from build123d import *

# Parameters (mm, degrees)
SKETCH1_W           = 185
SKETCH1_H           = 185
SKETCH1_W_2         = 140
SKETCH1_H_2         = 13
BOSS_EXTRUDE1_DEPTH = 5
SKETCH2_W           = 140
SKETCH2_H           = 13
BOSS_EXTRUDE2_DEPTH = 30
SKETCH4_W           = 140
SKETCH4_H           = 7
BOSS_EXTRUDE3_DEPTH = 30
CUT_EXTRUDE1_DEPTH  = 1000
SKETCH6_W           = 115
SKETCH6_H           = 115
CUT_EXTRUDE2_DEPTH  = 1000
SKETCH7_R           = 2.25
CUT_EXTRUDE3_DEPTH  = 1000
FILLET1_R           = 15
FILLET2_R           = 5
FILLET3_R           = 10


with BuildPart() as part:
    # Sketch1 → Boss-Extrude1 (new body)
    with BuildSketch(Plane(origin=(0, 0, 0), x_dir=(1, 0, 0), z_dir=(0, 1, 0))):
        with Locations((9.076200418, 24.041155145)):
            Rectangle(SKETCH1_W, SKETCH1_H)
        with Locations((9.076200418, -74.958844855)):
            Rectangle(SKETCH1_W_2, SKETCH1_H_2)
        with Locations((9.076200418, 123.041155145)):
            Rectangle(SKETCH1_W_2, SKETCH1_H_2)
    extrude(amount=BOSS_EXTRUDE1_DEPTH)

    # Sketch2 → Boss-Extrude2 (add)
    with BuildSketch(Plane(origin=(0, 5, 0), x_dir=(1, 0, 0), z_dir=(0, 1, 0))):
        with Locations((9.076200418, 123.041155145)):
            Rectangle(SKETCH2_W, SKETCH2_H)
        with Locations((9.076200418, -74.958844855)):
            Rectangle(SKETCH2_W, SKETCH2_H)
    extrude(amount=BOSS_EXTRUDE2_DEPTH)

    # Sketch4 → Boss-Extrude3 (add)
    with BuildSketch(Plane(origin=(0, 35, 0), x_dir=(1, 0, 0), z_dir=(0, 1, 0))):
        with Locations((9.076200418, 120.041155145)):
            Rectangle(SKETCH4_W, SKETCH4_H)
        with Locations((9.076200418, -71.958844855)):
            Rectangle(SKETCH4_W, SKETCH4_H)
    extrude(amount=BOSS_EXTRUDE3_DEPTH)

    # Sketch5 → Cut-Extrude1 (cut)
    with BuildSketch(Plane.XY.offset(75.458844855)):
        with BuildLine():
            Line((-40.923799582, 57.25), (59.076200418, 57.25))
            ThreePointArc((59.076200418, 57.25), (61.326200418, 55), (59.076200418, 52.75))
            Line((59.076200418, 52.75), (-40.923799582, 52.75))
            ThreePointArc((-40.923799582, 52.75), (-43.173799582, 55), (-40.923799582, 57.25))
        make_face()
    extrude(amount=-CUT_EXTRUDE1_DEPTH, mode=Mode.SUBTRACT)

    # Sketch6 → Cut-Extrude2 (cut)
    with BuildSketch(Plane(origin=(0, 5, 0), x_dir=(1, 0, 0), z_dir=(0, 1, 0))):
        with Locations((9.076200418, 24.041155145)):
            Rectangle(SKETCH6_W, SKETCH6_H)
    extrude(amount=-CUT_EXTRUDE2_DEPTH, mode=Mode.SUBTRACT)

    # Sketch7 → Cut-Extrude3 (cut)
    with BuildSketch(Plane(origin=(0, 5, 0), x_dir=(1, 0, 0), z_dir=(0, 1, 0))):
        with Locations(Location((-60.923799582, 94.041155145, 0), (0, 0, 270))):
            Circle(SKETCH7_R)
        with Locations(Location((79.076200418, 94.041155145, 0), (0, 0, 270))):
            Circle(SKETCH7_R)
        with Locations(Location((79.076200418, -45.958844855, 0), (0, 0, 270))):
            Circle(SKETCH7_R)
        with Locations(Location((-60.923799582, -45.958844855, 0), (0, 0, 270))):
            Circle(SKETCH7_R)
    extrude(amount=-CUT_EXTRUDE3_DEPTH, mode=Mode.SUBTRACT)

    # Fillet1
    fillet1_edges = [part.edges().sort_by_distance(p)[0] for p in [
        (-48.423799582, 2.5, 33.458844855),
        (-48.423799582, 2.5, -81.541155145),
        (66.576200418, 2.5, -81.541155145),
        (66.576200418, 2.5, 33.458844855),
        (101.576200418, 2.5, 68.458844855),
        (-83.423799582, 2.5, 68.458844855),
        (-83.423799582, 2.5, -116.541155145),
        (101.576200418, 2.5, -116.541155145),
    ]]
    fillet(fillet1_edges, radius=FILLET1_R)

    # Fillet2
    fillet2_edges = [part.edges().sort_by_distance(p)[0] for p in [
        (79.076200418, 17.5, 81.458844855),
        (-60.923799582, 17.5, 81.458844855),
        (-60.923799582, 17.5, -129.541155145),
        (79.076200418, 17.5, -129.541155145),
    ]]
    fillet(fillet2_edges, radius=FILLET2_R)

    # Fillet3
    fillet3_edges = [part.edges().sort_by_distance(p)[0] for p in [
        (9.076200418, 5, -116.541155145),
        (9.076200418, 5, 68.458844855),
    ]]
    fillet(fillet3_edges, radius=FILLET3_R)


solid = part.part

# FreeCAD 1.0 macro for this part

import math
import FreeCAD as App
import Part
import Sketcher
Q = App.Units.Quantity


def edges_at(feature, points):
    """Names of the edges that pass closest to the given points."""
    edges = feature.Shape.Edges
    near = lambda p: min(range(len(edges)), key=lambda i: edges[i].distToShape(Part.Vertex(*p))[0])
    return sorted({f"Edge{near(p) + 1}" for p in points})

doc = App.newDocument("Part")
body = doc.addObject("PartDesign::Body", "Body")

sketch1 = body.newObject("Sketcher::SketchObject", "Sketch")
sketch1.AttachmentSupport = (doc.getObject("XZ_Plane"), [""])
sketch1.MapMode = "FlatFace"
sketch1.addGeometry([
    Part.LineSegment(App.Vector(-83.4238, -116.541155, 0), App.Vector(-83.4238, 68.458845, 0)),
    Part.LineSegment(App.Vector(-83.4238, 68.458845, 0), App.Vector(-60.9238, 68.458845, 0)),
    Part.LineSegment(App.Vector(-60.9238, 68.458845, 0), App.Vector(-60.9238, 81.458845, 0)),
    Part.LineSegment(App.Vector(-60.9238, 81.458845, 0), App.Vector(79.0762, 81.458845, 0)),
    Part.LineSegment(App.Vector(79.0762, 81.458845, 0), App.Vector(79.0762, 68.458845, 0)),
    Part.LineSegment(App.Vector(79.0762, 68.458845, 0), App.Vector(101.5762, 68.458845, 0)),
    Part.LineSegment(App.Vector(101.5762, 68.458845, 0), App.Vector(101.5762, -116.541155, 0)),
    Part.LineSegment(App.Vector(101.5762, -116.541155, 0), App.Vector(79.0762, -116.541155, 0)),
    Part.LineSegment(App.Vector(79.0762, -116.541155, 0), App.Vector(79.0762, -129.541155, 0)),
    Part.LineSegment(App.Vector(79.0762, -129.541155, 0), App.Vector(-60.9238, -129.541155, 0)),
    Part.LineSegment(App.Vector(-60.9238, -129.541155, 0), App.Vector(-60.9238, -116.541155, 0)),
    Part.LineSegment(App.Vector(-60.9238, -116.541155, 0), App.Vector(-83.4238, -116.541155, 0)),
], False)
sketch1.addConstraint([
    Sketcher.Constraint("Coincident", 0, 2, 1, 1),
    Sketcher.Constraint("Coincident", 1, 2, 2, 1),
    Sketcher.Constraint("Coincident", 2, 2, 3, 1),
    Sketcher.Constraint("Coincident", 3, 2, 4, 1),
    Sketcher.Constraint("Coincident", 4, 2, 5, 1),
    Sketcher.Constraint("Coincident", 5, 2, 6, 1),
    Sketcher.Constraint("Coincident", 6, 2, 7, 1),
    Sketcher.Constraint("Coincident", 7, 2, 8, 1),
    Sketcher.Constraint("Coincident", 8, 2, 9, 1),
    Sketcher.Constraint("Coincident", 9, 2, 10, 1),
    Sketcher.Constraint("Coincident", 10, 2, 11, 1),
    Sketcher.Constraint("Coincident", 11, 2, 0, 1),
    Sketcher.Constraint("Vertical", 0),
    Sketcher.Constraint("Horizontal", 1),
    Sketcher.Constraint("Vertical", 2),
    Sketcher.Constraint("Horizontal", 3),
    Sketcher.Constraint("Vertical", 4),
    Sketcher.Constraint("Horizontal", 5),
    Sketcher.Constraint("Vertical", 6),
    Sketcher.Constraint("Horizontal", 7),
    Sketcher.Constraint("Vertical", 8),
    Sketcher.Constraint("Horizontal", 9),
    Sketcher.Constraint("Vertical", 10),
    Sketcher.Constraint("Horizontal", 11),
    Sketcher.Constraint("Horizontal", 1, 2, 4, 2),
    Sketcher.Constraint("Horizontal", 7, 2, 10, 2),
    Sketcher.Constraint("Vertical", 4, 2, 7, 2),
    Sketcher.Constraint("Vertical", 2, 2, 9, 2),
    Sketcher.Constraint("Equal", 1, 5),
    Sketcher.Constraint("Equal", 4, 8),
    Sketcher.Constraint("DistanceX", 3, 1, 3, 2, Q("140 mm")),
    Sketcher.Constraint("DistanceY", 0, 1, 0, 2, Q("185 mm")),
    Sketcher.Constraint("DistanceY", 2, 1, 2, 2, Q("13 mm")),
    Sketcher.Constraint("DistanceX", 1, 1, 1, 2, Q("22.5 mm")),
    Sketcher.Constraint("DistanceX", 0, 2, -1, 1, Q("83.4238 mm")),
    Sketcher.Constraint("DistanceY", -1, 1, 0, 2, Q("68.458845 mm")),
])
pad1 = body.newObject("PartDesign::Pad", "Pad")
pad1.Profile = sketch1
pad1.Length = 5
pad1.Reversed = True

sketch2 = body.newObject("Sketcher::SketchObject", "Sketch001")
sketch2.AttachmentSupport = (doc.getObject("XZ_Plane"), [""])
sketch2.MapMode = "FlatFace"
sketch2.AttachmentOffset = App.Placement(App.Vector(0, 0, -5), App.Rotation())
sketch2.addGeometry([
    Part.LineSegment(App.Vector(-60.9238, -129.541155, 0), App.Vector(-60.9238, -116.541155, 0)),
    Part.LineSegment(App.Vector(-60.9238, -116.541155, 0), App.Vector(79.0762, -116.541155, 0)),
    Part.LineSegment(App.Vector(79.0762, -116.541155, 0), App.Vector(79.0762, -129.541155, 0)),
    Part.LineSegment(App.Vector(79.0762, -129.541155, 0), App.Vector(-60.9238, -129.541155, 0)),
    Part.LineSegment(App.Vector(-60.9238, 68.458845, 0), App.Vector(-60.9238, 81.458845, 0)),
    Part.LineSegment(App.Vector(-60.9238, 81.458845, 0), App.Vector(79.0762, 81.458845, 0)),
    Part.LineSegment(App.Vector(79.0762, 81.458845, 0), App.Vector(79.0762, 68.458845, 0)),
    Part.LineSegment(App.Vector(79.0762, 68.458845, 0), App.Vector(-60.9238, 68.458845, 0)),
], False)
sketch2.addConstraint([
    Sketcher.Constraint("Coincident", 0, 2, 1, 1),
    Sketcher.Constraint("Coincident", 1, 2, 2, 1),
    Sketcher.Constraint("Coincident", 2, 2, 3, 1),
    Sketcher.Constraint("Coincident", 3, 2, 0, 1),
    Sketcher.Constraint("Coincident", 4, 2, 5, 1),
    Sketcher.Constraint("Coincident", 5, 2, 6, 1),
    Sketcher.Constraint("Coincident", 6, 2, 7, 1),
    Sketcher.Constraint("Coincident", 7, 2, 4, 1),
    Sketcher.Constraint("Vertical", 0),
    Sketcher.Constraint("Horizontal", 1),
    Sketcher.Constraint("Vertical", 2),
    Sketcher.Constraint("Horizontal", 3),
    Sketcher.Constraint("Vertical", 4),
    Sketcher.Constraint("Horizontal", 5),
    Sketcher.Constraint("Vertical", 6),
    Sketcher.Constraint("Horizontal", 7),
    Sketcher.Constraint("Vertical", 3, 2, 4, 2),
    Sketcher.Constraint("Vertical", 2, 2, 5, 2),
    Sketcher.Constraint("Equal", 2, 4),
    Sketcher.Constraint("DistanceX", 1, 1, 1, 2, Q("140 mm")),
    Sketcher.Constraint("DistanceY", 0, 1, 0, 2, Q("13 mm")),
    Sketcher.Constraint("DistanceY", 0, 2, 4, 2, Q("198 mm")),
    Sketcher.Constraint("DistanceX", 0, 2, -1, 1, Q("60.9238 mm")),
    Sketcher.Constraint("DistanceY", 0, 2, -1, 1, Q("116.541155 mm")),
])
pad2 = body.newObject("PartDesign::Pad", "Pad001")
pad2.Profile = sketch2
pad2.Length = 30
pad2.Reversed = True

sketch3 = body.newObject("Sketcher::SketchObject", "Sketch002")
sketch3.AttachmentSupport = (doc.getObject("XZ_Plane"), [""])
sketch3.MapMode = "FlatFace"
sketch3.AttachmentOffset = App.Placement(App.Vector(0, 0, -35), App.Rotation())
sketch3.addGeometry([
    Part.LineSegment(App.Vector(-60.9238, -123.541155, 0), App.Vector(-60.9238, -116.541155, 0)),
    Part.LineSegment(App.Vector(-60.9238, -116.541155, 0), App.Vector(79.0762, -116.541155, 0)),
    Part.LineSegment(App.Vector(79.0762, -116.541155, 0), App.Vector(79.0762, -123.541155, 0)),
    Part.LineSegment(App.Vector(79.0762, -123.541155, 0), App.Vector(-60.9238, -123.541155, 0)),
    Part.LineSegment(App.Vector(-60.9238, 68.458845, 0), App.Vector(-60.9238, 75.458845, 0)),
    Part.LineSegment(App.Vector(-60.9238, 75.458845, 0), App.Vector(79.0762, 75.458845, 0)),
    Part.LineSegment(App.Vector(79.0762, 75.458845, 0), App.Vector(79.0762, 68.458845, 0)),
    Part.LineSegment(App.Vector(79.0762, 68.458845, 0), App.Vector(-60.9238, 68.458845, 0)),
], False)
sketch3.addConstraint([
    Sketcher.Constraint("Coincident", 0, 2, 1, 1),
    Sketcher.Constraint("Coincident", 1, 2, 2, 1),
    Sketcher.Constraint("Coincident", 2, 2, 3, 1),
    Sketcher.Constraint("Coincident", 3, 2, 0, 1),
    Sketcher.Constraint("Coincident", 4, 2, 5, 1),
    Sketcher.Constraint("Coincident", 5, 2, 6, 1),
    Sketcher.Constraint("Coincident", 6, 2, 7, 1),
    Sketcher.Constraint("Coincident", 7, 2, 4, 1),
    Sketcher.Constraint("Vertical", 0),
    Sketcher.Constraint("Horizontal", 1),
    Sketcher.Constraint("Vertical", 2),
    Sketcher.Constraint("Horizontal", 3),
    Sketcher.Constraint("Vertical", 4),
    Sketcher.Constraint("Horizontal", 5),
    Sketcher.Constraint("Vertical", 6),
    Sketcher.Constraint("Horizontal", 7),
    Sketcher.Constraint("Vertical", 3, 2, 4, 2),
    Sketcher.Constraint("Vertical", 2, 2, 5, 2),
    Sketcher.Constraint("Equal", 2, 4),
    Sketcher.Constraint("DistanceX", 1, 1, 1, 2, Q("140 mm")),
    Sketcher.Constraint("DistanceY", 0, 1, 0, 2, Q("7 mm")),
    Sketcher.Constraint("DistanceY", 0, 2, 4, 2, Q("192 mm")),
    Sketcher.Constraint("DistanceX", 0, 2, -1, 1, Q("60.9238 mm")),
    Sketcher.Constraint("DistanceY", 0, 2, -1, 1, Q("116.541155 mm")),
])
pad3 = body.newObject("PartDesign::Pad", "Pad002")
pad3.Profile = sketch3
pad3.Length = 30
pad3.Reversed = True

sketch4 = body.newObject("Sketcher::SketchObject", "Sketch003")
sketch4.AttachmentSupport = (doc.getObject("XY_Plane"), [""])
sketch4.MapMode = "FlatFace"
sketch4.AttachmentOffset = App.Placement(App.Vector(0, 0, 75.458845), App.Rotation())
sketch4.addGeometry([
    Part.LineSegment(App.Vector(59.0762, 57.25, 0), App.Vector(-40.9238, 57.25, 0)),
    Part.ArcOfCircle(Part.Circle(App.Vector(-40.9238, 55, 0), App.Vector(0, 0, 1), 2.25), math.radians(90), math.radians(270)),
    Part.LineSegment(App.Vector(-40.9238, 52.75, 0), App.Vector(59.0762, 52.75, 0)),
    Part.ArcOfCircle(Part.Circle(App.Vector(59.0762, 55, 0), App.Vector(0, 0, 1), 2.25), math.radians(-90), math.radians(90)),
], False)
sketch4.addConstraint([
    Sketcher.Constraint("Tangent", 0, 2, 1, 1),
    Sketcher.Constraint("Tangent", 1, 2, 2, 1),
    Sketcher.Constraint("Tangent", 2, 2, 3, 1),
    Sketcher.Constraint("Tangent", 3, 2, 0, 1),
    Sketcher.Constraint("Horizontal", 0),
    Sketcher.Constraint("Horizontal", 2),
    Sketcher.Constraint("DistanceX", 0, 2, 0, 1, Q("100 mm")),
    Sketcher.Constraint("Radius", 1, Q("2.25 mm")),
    Sketcher.Constraint("DistanceY", -1, 1, 1, 3, Q("55 mm")),
    Sketcher.Constraint("DistanceX", 1, 3, -1, 1, Q("40.9238 mm")),
])
pocket1 = body.newObject("PartDesign::Pocket", "Pocket")
pocket1.Profile = sketch4
pocket1.Length = 1000

sketch5 = body.newObject("Sketcher::SketchObject", "Sketch004")
sketch5.AttachmentSupport = (doc.getObject("XZ_Plane"), [""])
sketch5.MapMode = "FlatFace"
sketch5.AttachmentOffset = App.Placement(App.Vector(0, 0, -5), App.Rotation())
sketch5.addGeometry([
    Part.LineSegment(App.Vector(-48.4238, -81.541155, 0), App.Vector(-48.4238, 33.458845, 0)),
    Part.LineSegment(App.Vector(-48.4238, 33.458845, 0), App.Vector(66.5762, 33.458845, 0)),
    Part.LineSegment(App.Vector(66.5762, 33.458845, 0), App.Vector(66.5762, -81.541155, 0)),
    Part.LineSegment(App.Vector(66.5762, -81.541155, 0), App.Vector(-48.4238, -81.541155, 0)),
], False)
sketch5.addConstraint([
    Sketcher.Constraint("Coincident", 0, 2, 1, 1),
    Sketcher.Constraint("Coincident", 1, 2, 2, 1),
    Sketcher.Constraint("Coincident", 2, 2, 3, 1),
    Sketcher.Constraint("Coincident", 3, 2, 0, 1),
    Sketcher.Constraint("Vertical", 0),
    Sketcher.Constraint("Horizontal", 1),
    Sketcher.Constraint("Vertical", 2),
    Sketcher.Constraint("Horizontal", 3),
    Sketcher.Constraint("Equal", 3, 0),
    Sketcher.Constraint("DistanceX", 1, 1, 1, 2, Q("115 mm")),
    Sketcher.Constraint("DistanceX", 0, 2, -1, 1, Q("48.4238 mm")),
    Sketcher.Constraint("DistanceY", -1, 1, 0, 2, Q("33.458845 mm")),
])
pocket2 = body.newObject("PartDesign::Pocket", "Pocket001")
pocket2.Profile = sketch5
pocket2.Length = 1000
pocket2.Reversed = True

sketch6 = body.newObject("Sketcher::SketchObject", "Sketch005")
sketch6.AttachmentSupport = (doc.getObject("XZ_Plane"), [""])
sketch6.MapMode = "FlatFace"
sketch6.AttachmentOffset = App.Placement(App.Vector(0, 0, -5), App.Rotation())
sketch6.addGeometry([
    Part.Circle(App.Vector(-60.9238, -94.041155, 0), App.Vector(0, 0, 1), 2.25),
    Part.Circle(App.Vector(79.0762, -94.041155, 0), App.Vector(0, 0, 1), 2.25),
    Part.Circle(App.Vector(79.0762, 45.958845, 0), App.Vector(0, 0, 1), 2.25),
    Part.Circle(App.Vector(-60.9238, 45.958845, 0), App.Vector(0, 0, 1), 2.25),
], False)
sketch6.addConstraint([
    Sketcher.Constraint("Equal", 0, 1),
    Sketcher.Constraint("Equal", 1, 2),
    Sketcher.Constraint("Equal", 2, 3),
    Sketcher.Constraint("Horizontal", 0, 3, 1, 3),
    Sketcher.Constraint("Horizontal", 2, 3, 3, 3),
    Sketcher.Constraint("Vertical", 1, 3, 2, 3),
    Sketcher.Constraint("Vertical", 0, 3, 3, 3),
    Sketcher.Constraint("Diameter", 0, Q("4.5 mm")),
    Sketcher.Constraint("DistanceX", 0, 3, 1, 3, Q("140 mm")),
    Sketcher.Constraint("DistanceY", 1, 3, 2, 3, Q("140 mm")),
    Sketcher.Constraint("DistanceX", 0, 3, -1, 1, Q("60.9238 mm")),
    Sketcher.Constraint("DistanceY", 0, 3, -1, 1, Q("94.041155 mm")),
])
pocket3 = body.newObject("PartDesign::Pocket", "Pocket002")
pocket3.Profile = sketch6
pocket3.Length = 1000
pocket3.Reversed = True
doc.recompute()

fillet = body.newObject("PartDesign::Fillet", "Fillet")
fillet.Base = (pocket3, edges_at(pocket3, [
    (-48.424, 2.5, 33.459),
    (-48.424, 2.5, -81.541),
    (66.576, 2.5, -81.541),
    (66.576, 2.5, 33.459),
    (101.576, 2.5, 68.459),
    (-83.424, 2.5, 68.459),
    (-83.424, 2.5, -116.541),
    (101.576, 2.5, -116.541),
]))
fillet.Radius = 15
doc.recompute()

fillet2 = body.newObject("PartDesign::Fillet", "Fillet001")
fillet2.Base = (fillet, edges_at(fillet, [
    (79.076, 17.5, 81.459),
    (-60.924, 17.5, 81.459),
    (-60.924, 17.5, -129.541),
    (79.076, 17.5, -129.541),
]))
fillet2.Radius = 5
doc.recompute()

fillet3 = body.newObject("PartDesign::Fillet", "Fillet002")
fillet3.Base = (fillet2, edges_at(fillet2, [(9.076, 5, -116.541), (9.076, 5, 68.459)]))
fillet3.Radius = 10

doc.recompute()
